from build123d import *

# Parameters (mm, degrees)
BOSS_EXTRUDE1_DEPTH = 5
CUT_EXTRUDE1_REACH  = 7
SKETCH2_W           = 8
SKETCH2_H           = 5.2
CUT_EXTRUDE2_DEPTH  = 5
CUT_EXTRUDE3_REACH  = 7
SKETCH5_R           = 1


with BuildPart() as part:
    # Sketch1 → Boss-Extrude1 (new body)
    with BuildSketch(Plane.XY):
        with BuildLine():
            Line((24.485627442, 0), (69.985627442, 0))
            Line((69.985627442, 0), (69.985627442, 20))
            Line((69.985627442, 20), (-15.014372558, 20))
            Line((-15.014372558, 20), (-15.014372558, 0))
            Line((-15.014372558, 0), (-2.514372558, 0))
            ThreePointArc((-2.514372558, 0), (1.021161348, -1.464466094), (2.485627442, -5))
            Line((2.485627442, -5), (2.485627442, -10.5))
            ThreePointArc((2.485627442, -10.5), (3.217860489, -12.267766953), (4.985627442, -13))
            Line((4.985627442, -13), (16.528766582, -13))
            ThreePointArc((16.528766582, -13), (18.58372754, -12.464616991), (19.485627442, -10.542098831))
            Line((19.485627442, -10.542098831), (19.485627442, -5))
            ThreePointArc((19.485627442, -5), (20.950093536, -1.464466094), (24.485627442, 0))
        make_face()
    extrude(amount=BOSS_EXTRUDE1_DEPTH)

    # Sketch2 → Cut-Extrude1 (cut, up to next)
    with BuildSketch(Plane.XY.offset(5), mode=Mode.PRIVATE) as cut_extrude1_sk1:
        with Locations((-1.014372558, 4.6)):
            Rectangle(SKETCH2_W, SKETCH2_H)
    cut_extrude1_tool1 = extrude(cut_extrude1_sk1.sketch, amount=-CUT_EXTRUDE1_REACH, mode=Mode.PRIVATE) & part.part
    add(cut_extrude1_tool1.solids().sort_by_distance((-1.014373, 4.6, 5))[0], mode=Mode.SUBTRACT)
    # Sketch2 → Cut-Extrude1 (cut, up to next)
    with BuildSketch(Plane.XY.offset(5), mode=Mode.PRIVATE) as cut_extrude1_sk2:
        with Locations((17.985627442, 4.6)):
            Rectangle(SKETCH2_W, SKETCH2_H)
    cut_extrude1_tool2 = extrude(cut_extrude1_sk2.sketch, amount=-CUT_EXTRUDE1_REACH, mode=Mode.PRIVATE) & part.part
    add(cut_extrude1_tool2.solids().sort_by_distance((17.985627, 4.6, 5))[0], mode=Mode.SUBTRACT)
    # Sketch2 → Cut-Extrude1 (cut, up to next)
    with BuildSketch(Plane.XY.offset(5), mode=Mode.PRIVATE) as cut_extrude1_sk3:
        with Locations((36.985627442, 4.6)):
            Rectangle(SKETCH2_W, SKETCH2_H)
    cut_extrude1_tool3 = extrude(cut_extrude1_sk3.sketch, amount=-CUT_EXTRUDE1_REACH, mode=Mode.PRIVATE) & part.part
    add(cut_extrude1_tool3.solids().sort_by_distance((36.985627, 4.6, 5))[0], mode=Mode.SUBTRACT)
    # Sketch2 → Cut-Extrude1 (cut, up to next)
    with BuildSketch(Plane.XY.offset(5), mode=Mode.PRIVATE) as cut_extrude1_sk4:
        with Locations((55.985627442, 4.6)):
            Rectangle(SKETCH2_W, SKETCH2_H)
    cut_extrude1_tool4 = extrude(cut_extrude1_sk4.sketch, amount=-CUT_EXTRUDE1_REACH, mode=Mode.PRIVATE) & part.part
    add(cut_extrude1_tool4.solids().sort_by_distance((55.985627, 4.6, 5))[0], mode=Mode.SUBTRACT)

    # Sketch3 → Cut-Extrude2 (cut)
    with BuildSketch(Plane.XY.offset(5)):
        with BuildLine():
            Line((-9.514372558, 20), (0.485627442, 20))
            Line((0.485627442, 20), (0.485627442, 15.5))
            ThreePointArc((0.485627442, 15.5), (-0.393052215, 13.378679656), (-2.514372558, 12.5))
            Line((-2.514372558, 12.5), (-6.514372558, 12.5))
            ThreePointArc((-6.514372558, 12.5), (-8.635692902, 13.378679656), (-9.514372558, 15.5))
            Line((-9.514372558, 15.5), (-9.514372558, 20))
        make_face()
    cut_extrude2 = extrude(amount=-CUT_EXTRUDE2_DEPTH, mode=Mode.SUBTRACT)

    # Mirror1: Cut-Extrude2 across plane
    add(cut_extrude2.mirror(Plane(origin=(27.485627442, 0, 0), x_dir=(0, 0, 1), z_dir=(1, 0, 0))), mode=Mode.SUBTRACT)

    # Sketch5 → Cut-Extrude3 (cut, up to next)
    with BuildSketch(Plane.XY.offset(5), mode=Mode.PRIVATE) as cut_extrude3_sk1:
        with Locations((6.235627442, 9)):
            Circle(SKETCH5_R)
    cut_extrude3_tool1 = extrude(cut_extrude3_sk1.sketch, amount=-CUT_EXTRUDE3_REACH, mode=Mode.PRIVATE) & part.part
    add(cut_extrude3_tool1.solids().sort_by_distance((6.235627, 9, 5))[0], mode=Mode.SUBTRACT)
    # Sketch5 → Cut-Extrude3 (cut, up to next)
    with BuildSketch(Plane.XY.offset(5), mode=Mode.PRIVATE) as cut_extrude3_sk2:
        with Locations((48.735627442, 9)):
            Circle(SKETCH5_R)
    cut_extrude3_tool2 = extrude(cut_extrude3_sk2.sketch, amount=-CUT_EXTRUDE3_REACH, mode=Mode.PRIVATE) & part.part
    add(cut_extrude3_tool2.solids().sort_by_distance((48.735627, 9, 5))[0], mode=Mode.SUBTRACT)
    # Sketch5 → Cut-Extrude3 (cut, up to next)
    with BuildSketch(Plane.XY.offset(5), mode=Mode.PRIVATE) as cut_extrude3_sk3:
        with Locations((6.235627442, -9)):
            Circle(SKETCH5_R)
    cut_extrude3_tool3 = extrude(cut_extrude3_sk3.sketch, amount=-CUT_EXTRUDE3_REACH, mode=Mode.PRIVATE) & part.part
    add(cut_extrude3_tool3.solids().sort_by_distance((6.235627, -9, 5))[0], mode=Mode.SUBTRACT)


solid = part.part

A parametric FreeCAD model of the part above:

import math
import FreeCAD as App
import Part
import Sketcher
from FreeCAD import Vector

doc = App.newDocument("Part")
body = doc.addObject("PartDesign::Body", "Body")

# Sketch on XY plane
sketch1 = body.newObject("Sketcher::SketchObject", "Sketch")
sketch1.AttachmentSupport = (doc.getObject("XY_Plane"), [""])
sketch1.MapMode = "FlatFace"
sketch1.addGeometry([
    Part.LineSegment(Vector(24.5, 0, 0), Vector(70, 0, 0)),  # 0
    Part.LineSegment(Vector(70, 0, 0), Vector(70, 20, 0)),  # 1
    Part.LineSegment(Vector(70, 20, 0), Vector(-15, 20, 0)),  # 2
    Part.LineSegment(Vector(-15, 20, 0), Vector(-15, 0, 0)),  # 3
    Part.LineSegment(Vector(-15, 0, 0), Vector(-2.5, 0, 0)),  # 4
    Part.ArcOfCircle(Part.Circle(Vector(-2.5, -5, 0), Vector(0, 0, 1), 5), math.radians(0), math.radians(90)),  # 5
    Part.LineSegment(Vector(2.5, -5, 0), Vector(2.5, -10.5, 0)),  # 6
    Part.ArcOfCircle(Part.Circle(Vector(5, -10.5, 0), Vector(0, 0, 1), 2.5), math.radians(180), math.radians(270)),  # 7
    Part.LineSegment(Vector(5, -13, 0), Vector(16.5, -13, 0)),  # 8
    Part.ArcOfCircle(Part.Circle(Vector(17, -10.5, 0), Vector(0, 0, 1), 2.5), math.radians(-101), math.radians(0)),  # 9
    Part.LineSegment(Vector(19.5, -10.5, 0), Vector(19.5, -5, 0)),  # 10
    Part.ArcOfCircle(Part.Circle(Vector(24.5, -5, 0), Vector(0, 0, 1), 5), math.radians(90), math.radians(180)),  # 11
], False)
sketch1.addConstraint([
    Sketcher.Constraint("Coincident", 0, 2, 1, 1),
    Sketcher.Constraint("Coincident", 1, 2, 2, 1),
    Sketcher.Constraint("Coincident", 2, 2, 3, 1),
    Sketcher.Constraint("Coincident", 3, 2, 4, 1),
    Sketcher.Constraint("Tangent", 4, 2, 5, 2),
    Sketcher.Constraint("Tangent", 5, 1, 6, 1),
    Sketcher.Constraint("Tangent", 6, 2, 7, 1),
    Sketcher.Constraint("Tangent", 7, 2, 8, 1),
    Sketcher.Constraint("Coincident", 8, 2, 9, 1),
    Sketcher.Constraint("Tangent", 9, 2, 10, 1),
    Sketcher.Constraint("Tangent", 10, 2, 11, 2),
    Sketcher.Constraint("Tangent", 11, 1, 0, 1),
    Sketcher.Constraint("Horizontal", 0),
    Sketcher.Constraint("Vertical", 1),
    Sketcher.Constraint("Horizontal", 2),
    Sketcher.Constraint("Vertical", 3),
    Sketcher.Constraint("Horizontal", 4),
    Sketcher.Constraint("Vertical", 6),
    Sketcher.Constraint("Horizontal", 8),
    Sketcher.Constraint("Vertical", 10),
    Sketcher.Constraint("Equal", 7, 9),
    Sketcher.Constraint("Equal", 5, 11),
    Sketcher.Constraint("PointOnObject", 0, 2, -1),
    Sketcher.Constraint("PointOnObject", 3, 2, -1),
    Sketcher.Constraint("Radius", 5, 5.0),
    Sketcher.Constraint("Radius", 7, 2.5),
    Sketcher.Constraint("DistanceX", 2, 2, 2, 1, 85.0),
    Sketcher.Constraint("DistanceY", 1, 1, 1, 2, 20.0),
    Sketcher.Constraint("DistanceX", 0, 1, 0, 2, 45.5),
    Sketcher.Constraint("DistanceX", 4, 1, 4, 2, 12.5),
    Sketcher.Constraint("DistanceY", 6, 2, 6, 1, 5.5),
    Sketcher.Constraint("DistanceY", 10, 1, 10, 2, 5.542099),
    Sketcher.Constraint("DistanceX", 5, 3, -1, 1, 2.514373),
])
pad1 = body.newObject("PartDesign::Pad", "Pad")
pad1.Profile = sketch1
pad1.Length = 5

# Sketch on XY plane
sketch2 = body.newObject("Sketcher::SketchObject", "Sketch001")
sketch2.AttachmentSupport = (doc.getObject("XY_Plane"), [""])
sketch2.MapMode = "FlatFace"
sketch2.AttachmentOffset = App.Placement(Vector(0, 0, 5), App.Rotation())
sketch2.addGeometry([
    Part.LineSegment(Vector(-5, 7, 0), Vector(-5, 2, 0)),
    Part.LineSegment(Vector(-5, 2, 0), Vector(3, 2, 0)),
    Part.LineSegment(Vector(3, 2, 0), Vector(3, 7, 0)),
    Part.LineSegment(Vector(3, 7, 0), Vector(-5, 7, 0)),
], False)
sketch2.addConstraint([
    Sketcher.Constraint("Coincident", 0, 2, 1, 1),
    Sketcher.Constraint("Coincident", 1, 2, 2, 1),
    Sketcher.Constraint("Coincident", 2, 2, 3, 1),
    Sketcher.Constraint("Coincident", 3, 2, 0, 1),
    Sketcher.Constraint("Vertical", 0),
    Sketcher.Constraint("Horizontal", 1),
    Sketcher.Constraint("Vertical", 2),
    Sketcher.Constraint("Horizontal", 3),
    Sketcher.Constraint("DistanceX", 1, 1, 1, 2, 8.0),
    Sketcher.Constraint("DistanceY", 0, 2, 0, 1, 5.2),
    Sketcher.Constraint("DistanceY", -1, 1, 0, 2, 2.0),
    Sketcher.Constraint("DistanceX", 0, 2, -1, 1, 5.014373),
])
pocket1 = body.newObject("PartDesign::Pocket", "Pocket")
pocket1.Profile = sketch2
pocket1.Type = "UpToFirst"

# Sketch on XY plane
sketch3 = body.newObject("Sketcher::SketchObject", "Sketch002")
sketch3.AttachmentSupport = (doc.getObject("XY_Plane"), [""])
sketch3.MapMode = "FlatFace"
sketch3.AttachmentOffset = App.Placement(Vector(0, 0, 5), App.Rotation())
sketch3.addGeometry([
    Part.LineSegment(Vector(14, 7, 0), Vector(14, 2, 0)),
    Part.LineSegment(Vector(14, 2, 0), Vector(22, 2, 0)),
    Part.LineSegment(Vector(22, 2, 0), Vector(22, 7, 0)),
    Part.LineSegment(Vector(22, 7, 0), Vector(14, 7, 0)),
], False)
sketch3.addConstraint([
    Sketcher.Constraint("Coincident", 0, 2, 1, 1),
    Sketcher.Constraint("Coincident", 1, 2, 2, 1),
    Sketcher.Constraint("Coincident", 2, 2, 3, 1),
    Sketcher.Constraint("Coincident", 3, 2, 0, 1),
    Sketcher.Constraint("Vertical", 0),
    Sketcher.Constraint("Horizontal", 1),
    Sketcher.Constraint("Vertical", 2),
    Sketcher.Constraint("Horizontal", 3),
    Sketcher.Constraint("DistanceX", 1, 1, 1, 2, 8.0),
    Sketcher.Constraint("DistanceY", 0, 2, 0, 1, 5.2),
    Sketcher.Constraint("DistanceY", -1, 1, 0, 2, 2.0),
    Sketcher.Constraint("DistanceX", -1, 1, 0, 2, 13.985627),
])
pocket2 = body.newObject("PartDesign::Pocket", "Pocket001")
pocket2.Profile = sketch3
pocket2.Type = "UpToFirst"

# Sketch on XY plane
sketch4 = body.newObject("Sketcher::SketchObject", "Sketch003")
sketch4.AttachmentSupport = (doc.getObject("XY_Plane"), [""])
sketch4.MapMode = "FlatFace"
sketch4.AttachmentOffset = App.Placement(Vector(0, 0, 5), App.Rotation())
sketch4.addGeometry([
    Part.LineSegment(Vector(33, 7, 0), Vector(33, 2, 0)),
    Part.LineSegment(Vector(33, 2, 0), Vector(41, 2, 0)),
    Part.LineSegment(Vector(41, 2, 0), Vector(41, 7, 0)),
    Part.LineSegment(Vector(41, 7, 0), Vector(33, 7, 0)),
], False)
sketch4.addConstraint([
    Sketcher.Constraint("Coincident", 0, 2, 1, 1),
    Sketcher.Constraint("Coincident", 1, 2, 2, 1),
    Sketcher.Constraint("Coincident", 2, 2, 3, 1),
    Sketcher.Constraint("Coincident", 3, 2, 0, 1),
    Sketcher.Constraint("Vertical", 0),
    Sketcher.Constraint("Horizontal", 1),
    Sketcher.Constraint("Vertical", 2),
    Sketcher.Constraint("Horizontal", 3),
    Sketcher.Constraint("DistanceX", 1, 1, 1, 2, 8.0),
    Sketcher.Constraint("DistanceY", 0, 2, 0, 1, 5.2),
    Sketcher.Constraint("DistanceY", -1, 1, 0, 2, 2.0),
    Sketcher.Constraint("DistanceX", -1, 1, 0, 2, 32.985627),
])
pocket3 = body.newObject("PartDesign::Pocket", "Pocket002")
pocket3.Profile = sketch4
pocket3.Type = "UpToFirst"

# Sketch on XY plane
sketch5 = body.newObject("Sketcher::SketchObject", "Sketch004")
sketch5.AttachmentSupport = (doc.getObject("XY_Plane"), [""])
sketch5.MapMode = "FlatFace"
sketch5.AttachmentOffset = App.Placement(Vector(0, 0, 5), App.Rotation())
sketch5.addGeometry([
    Part.LineSegment(Vector(52, 7, 0), Vector(52, 2, 0)),
    Part.LineSegment(Vector(52, 2, 0), Vector(60, 2, 0)),
    Part.LineSegment(Vector(60, 2, 0), Vector(60, 7, 0)),
    Part.LineSegment(Vector(60, 7, 0), Vector(52, 7, 0)),
], False)
sketch5.addConstraint([
    Sketcher.Constraint("Coincident", 0, 2, 1, 1),
    Sketcher.Constraint("Coincident", 1, 2, 2, 1),
    Sketcher.Constraint("Coincident", 2, 2, 3, 1),
    Sketcher.Constraint("Coincident", 3, 2, 0, 1),
    Sketcher.Constraint("Vertical", 0),
    Sketcher.Constraint("Horizontal", 1),
    Sketcher.Constraint("Vertical", 2),
    Sketcher.Constraint("Horizontal", 3),
    Sketcher.Constraint("DistanceX", 1, 1, 1, 2, 8.0),
    Sketcher.Constraint("DistanceY", 0, 2, 0, 1, 5.2),
    Sketcher.Constraint("DistanceY", -1, 1, 0, 2, 2.0),
    Sketcher.Constraint("DistanceX", -1, 1, 0, 2, 51.985627),
])
pocket4 = body.newObject("PartDesign::Pocket", "Pocket003")
pocket4.Profile = sketch5
pocket4.Type = "UpToFirst"

# Sketch on XY plane
sketch6 = body.newObject("Sketcher::SketchObject", "Sketch005")
sketch6.AttachmentSupport = (doc.getObject("XY_Plane"), [""])
sketch6.MapMode = "FlatFace"
sketch6.AttachmentOffset = App.Placement(Vector(0, 0, 5), App.Rotation())
sketch6.addGeometry([
    Part.LineSegment(Vector(0.5, 20, 0), Vector(-9.5, 20, 0)),  # 0
    Part.LineSegment(Vector(-9.5, 20, 0), Vector(-9.5, 15.5, 0)),  # 1
    Part.ArcOfCircle(Part.Circle(Vector(-6.5, 15.5, 0), Vector(0, 0, 1), 3), math.radians(180), math.radians(270)),  # 2
    Part.LineSegment(Vector(-6.5, 12.5, 0), Vector(-2.5, 12.5, 0)),  # 3
    Part.ArcOfCircle(Part.Circle(Vector(-2.5, 15.5, 0), Vector(0, 0, 1), 3), math.radians(-90), math.radians(0)),  # 4
    Part.LineSegment(Vector(0.5, 15.5, 0), Vector(0.5, 20, 0)),  # 5
], False)
sketch6.addConstraint([
    Sketcher.Constraint("Coincident", 0, 2, 1, 1),
    Sketcher.Constraint("Tangent", 1, 2, 2, 1),
    Sketcher.Constraint("Tangent", 2, 2, 3, 1),
    Sketcher.Constraint("Tangent", 3, 2, 4, 1),
    Sketcher.Constraint("Tangent", 4, 2, 5, 1),
    Sketcher.Constraint("Coincident", 5, 2, 0, 1),
    Sketcher.Constraint("Horizontal", 0),
    Sketcher.Constraint("Vertical", 1),
    Sketcher.Constraint("Horizontal", 3),
    Sketcher.Constraint("Vertical", 5),
    Sketcher.Constraint("Equal", 2, 4),
    Sketcher.Constraint("Radius", 2, 3.0),
    Sketcher.Constraint("DistanceX", 0, 2, 0, 1, 10.0),
    Sketcher.Constraint("DistanceY", 1, 2, 1, 1, 4.5),
    Sketcher.Constraint("DistanceY", -1, 1, 0, 2, 20.0),
    Sketcher.Constraint("DistanceX", 2, 3, -1, 1, 6.514373),
])
pocket5 = body.newObject("PartDesign::Pocket", "Pocket004")
pocket5.Profile = sketch6
pocket5.Length = 5
doc.recompute()

datumplane = body.newObject("PartDesign::Plane", "DatumPlane")
datumplane.AttachmentSupport = (doc.getObject("YZ_Plane"), [""])
datumplane.MapMode = "FlatFace"
datumplane.AttachmentOffset = App.Placement(Vector(0, 0, 27.485627), App.Rotation())
mirrored = body.newObject("PartDesign::Mirrored", "Mirrored")
mirrored.Originals = [pocket5]
mirrored.MirrorPlane = (datumplane, [""])
body.Tip = mirrored

# Sketch on XY plane
sketch7 = body.newObject("Sketcher::SketchObject", "Sketch006")
sketch7.AttachmentSupport = (doc.getObject("XY_Plane"), [""])
sketch7.MapMode = "FlatFace"
sketch7.AttachmentOffset = App.Placement(Vector(0, 0, 5), App.Rotation())
sketch7.addGeometry(Part.Circle(Vector(6.2, 9, 0), Vector(0, 0, 1), 1), False)
sketch7.addConstraint([
    Sketcher.Constraint("Diameter", 0, 2.0),
    Sketcher.Constraint("DistanceY", -1, 1, 0, 3, 9.0),
    Sketcher.Constraint("DistanceX", -1, 1, 0, 3, 6.235627),
])
pocket6 = body.newObject("PartDesign::Pocket", "Pocket005")
pocket6.Profile = sketch7
pocket6.Type = "UpToFirst"

# Sketch on XY plane
sketch8 = body.newObject("Sketcher::SketchObject", "Sketch007")
sketch8.AttachmentSupport = (doc.getObject("XY_Plane"), [""])
sketch8.MapMode = "FlatFace"
sketch8.AttachmentOffset = App.Placement(Vector(0, 0, 5), App.Rotation())
sketch8.addGeometry(Part.Circle(Vector(48.7, 9, 0), Vector(0, 0, 1), 1), False)
sketch8.addConstraint([
    Sketcher.Constraint("Diameter", 0, 2.0),
    Sketcher.Constraint("DistanceY", -1, 1, 0, 3, 9.0),
    Sketcher.Constraint("DistanceX", -1, 1, 0, 3, 48.735627),
])
pocket7 = body.newObject("PartDesign::Pocket", "Pocket006")
pocket7.Profile = sketch8
pocket7.Type = "UpToFirst"

# Sketch on XY plane
sketch9 = body.newObject("Sketcher::SketchObject", "Sketch008")
sketch9.AttachmentSupport = (doc.getObject("XY_Plane"), [""])
sketch9.MapMode = "FlatFace"
sketch9.AttachmentOffset = App.Placement(Vector(0, 0, 5), App.Rotation())
sketch9.addGeometry(Part.Circle(Vector(6.2, -9, 0), Vector(0, 0, 1), 1), False)
sketch9.addConstraint([
    Sketcher.Constraint("Diameter", 0, 2.0),
    Sketcher.Constraint("DistanceY", 0, 3, -1, 1, 9.0),
    Sketcher.Constraint("DistanceX", -1, 1, 0, 3, 6.235627),
])
pocket8 = body.newObject("PartDesign::Pocket", "Pocket007")
pocket8.Profile = sketch9
pocket8.Type = "UpToFirst"

doc.recompute()
